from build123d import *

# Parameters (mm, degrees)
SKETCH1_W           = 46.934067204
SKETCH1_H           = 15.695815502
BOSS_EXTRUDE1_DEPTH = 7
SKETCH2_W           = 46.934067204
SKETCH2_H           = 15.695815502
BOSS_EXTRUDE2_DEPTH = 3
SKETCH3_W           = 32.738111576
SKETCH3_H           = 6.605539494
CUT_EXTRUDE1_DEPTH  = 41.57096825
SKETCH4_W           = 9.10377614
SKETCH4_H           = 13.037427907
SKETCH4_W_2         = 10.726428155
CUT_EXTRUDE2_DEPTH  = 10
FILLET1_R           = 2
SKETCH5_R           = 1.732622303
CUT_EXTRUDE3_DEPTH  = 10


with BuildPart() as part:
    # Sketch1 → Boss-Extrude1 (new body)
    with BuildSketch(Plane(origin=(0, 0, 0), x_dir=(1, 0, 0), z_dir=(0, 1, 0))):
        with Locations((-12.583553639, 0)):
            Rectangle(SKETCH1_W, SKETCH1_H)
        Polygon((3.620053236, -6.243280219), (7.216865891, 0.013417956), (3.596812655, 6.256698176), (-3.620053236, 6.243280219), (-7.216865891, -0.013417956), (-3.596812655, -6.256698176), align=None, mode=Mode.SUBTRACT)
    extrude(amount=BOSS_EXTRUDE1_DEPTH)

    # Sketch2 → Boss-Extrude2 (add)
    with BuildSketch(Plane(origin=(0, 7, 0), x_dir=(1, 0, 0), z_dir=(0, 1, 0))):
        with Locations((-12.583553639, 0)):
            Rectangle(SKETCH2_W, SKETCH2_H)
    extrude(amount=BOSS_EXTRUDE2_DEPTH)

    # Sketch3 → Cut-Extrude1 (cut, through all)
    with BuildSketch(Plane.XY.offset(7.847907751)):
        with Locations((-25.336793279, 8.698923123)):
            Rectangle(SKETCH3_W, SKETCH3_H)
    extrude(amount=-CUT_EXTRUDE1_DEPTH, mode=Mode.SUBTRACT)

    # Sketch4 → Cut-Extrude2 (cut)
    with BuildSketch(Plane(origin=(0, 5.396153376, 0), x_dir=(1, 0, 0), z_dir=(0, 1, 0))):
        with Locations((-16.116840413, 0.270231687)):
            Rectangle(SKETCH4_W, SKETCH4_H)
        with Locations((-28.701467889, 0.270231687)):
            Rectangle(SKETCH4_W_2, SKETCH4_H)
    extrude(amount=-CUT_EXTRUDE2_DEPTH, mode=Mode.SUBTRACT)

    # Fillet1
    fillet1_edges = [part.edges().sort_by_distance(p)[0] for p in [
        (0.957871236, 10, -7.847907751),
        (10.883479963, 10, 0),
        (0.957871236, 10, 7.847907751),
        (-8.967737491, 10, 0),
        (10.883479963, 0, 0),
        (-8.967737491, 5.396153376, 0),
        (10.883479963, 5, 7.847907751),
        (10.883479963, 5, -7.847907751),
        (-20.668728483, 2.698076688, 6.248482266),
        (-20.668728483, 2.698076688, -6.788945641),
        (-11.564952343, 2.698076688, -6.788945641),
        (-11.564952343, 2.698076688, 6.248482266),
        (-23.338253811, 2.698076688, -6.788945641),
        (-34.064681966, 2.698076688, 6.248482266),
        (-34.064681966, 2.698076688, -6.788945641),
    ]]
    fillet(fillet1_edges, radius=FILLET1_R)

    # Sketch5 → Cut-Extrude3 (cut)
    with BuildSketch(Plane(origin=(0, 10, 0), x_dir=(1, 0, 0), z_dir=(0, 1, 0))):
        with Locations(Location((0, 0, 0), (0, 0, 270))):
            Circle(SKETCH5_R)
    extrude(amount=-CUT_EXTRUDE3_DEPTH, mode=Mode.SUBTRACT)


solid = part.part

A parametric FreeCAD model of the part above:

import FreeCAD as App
import Part
import Sketcher


def edges_at(feature, points):
    """Names of the edges that pass closest to the given points."""
    edges = feature.Shape.Edges
    near = lambda p: min(range(len(edges)), key=lambda i: edges[i].distToShape(Part.Vertex(*p))[0])
    return sorted({f"Edge{near(p) + 1}" for p in points})


def add_polygon(sketch, points):
    """Adds a closed chain of lines whose ends are joined by coincident constraints."""
    first, n = sketch.GeometryCount, len(points)
    for a, b in zip(points, points[1:] + points[:1]):
        sketch.addGeometry(Part.LineSegment(App.Vector(*a, 0), App.Vector(*b, 0)), False)
    for i in range(n):
        sketch.addConstraint(Sketcher.Constraint("Coincident", first + i, 2, first + (i + 1) % n, 1))

doc = App.newDocument("Part")
body = doc.addObject("PartDesign::Body", "Body")

# Sketch on XZ plane
sketch1 = doc.addObject("Sketcher::SketchObject", "Sketch")
body.addObject(sketch1)
sketch1.AttachmentSupport = (doc.XZ_Plane, [""])
sketch1.MapMode = "FlatFace"
add_polygon(sketch1, [(-36.050587, -7.847908), (-36.050587, 7.847908), (10.88348, 7.847908), (10.88348, -7.847908)])  # lines 0-3
add_polygon(sketch1, [(7.216866, -0.013418), (3.620053, 6.24328), (-3.596813, 6.256698), (-7.216866, 0.013418), (-3.620053, -6.24328), (3.596813, -6.256698)])  # lines 4-9
sketch1.addConstraint([
    Sketcher.Constraint("Vertical", 0),
    Sketcher.Constraint("Horizontal", 1),
    Sketcher.Constraint("Vertical", 2),
    Sketcher.Constraint("Horizontal", 3),
    Sketcher.Constraint("Symmetric", 4, 2, 7, 2, -1, 1),
    Sketcher.Constraint("Symmetric", 5, 2, 8, 2, -1, 1),
    Sketcher.Constraint("Symmetric", 6, 2, 9, 2, -1, 1),
    Sketcher.Constraint("Equal", 4, 5),
    Sketcher.Constraint("Equal", 5, 6),
    Sketcher.Constraint("DistanceY", -1, 1, 5, 2, 6.256698),
    Sketcher.Constraint("DistanceY", 7, 2, 6, 2, 6.256698),
    Sketcher.Constraint("Distance", 4, 7.216878),
    Sketcher.Constraint("DistanceX", 1, 1, 1, 2, 46.934067),
    Sketcher.Constraint("DistanceY", 0, 1, 0, 2, 15.695816),
    Sketcher.Constraint("DistanceX", -1, 1, 1, 2, 10.88348),
    Sketcher.Constraint("DistanceY", -1, 1, 4, 2, 6.24328),
    Sketcher.Constraint("DistanceY", 5, 2, 1, 2, 1.59121),
])
pad1 = doc.addObject("PartDesign::Pad", "Pad")
body.addObject(pad1)
pad1.Profile = sketch1
pad1.Length = 7
pad1.Reversed = True

# Sketch on XZ plane
sketch2 = doc.addObject("Sketcher::SketchObject", "Sketch001")
body.addObject(sketch2)
sketch2.AttachmentSupport = (doc.XZ_Plane, [""])
sketch2.MapMode = "FlatFace"
sketch2.AttachmentOffset = App.Placement(App.Vector(0, 0, -7), App.Rotation())
add_polygon(sketch2, [(-36.050587, -7.847908), (-36.050587, 7.847908), (10.88348, 7.847908), (10.88348, -7.847908)])  # lines 0-3
sketch2.addConstraint([
    Sketcher.Constraint("Vertical", 0),
    Sketcher.Constraint("Horizontal", 1),
    Sketcher.Constraint("Vertical", 2),
    Sketcher.Constraint("Horizontal", 3),
    Sketcher.Constraint("DistanceX", 1, 1, 1, 2, 46.934067),
    Sketcher.Constraint("DistanceY", 0, 1, 0, 2, 15.695816),
    Sketcher.Constraint("DistanceX", -1, 1, 1, 2, 10.88348),
    Sketcher.Constraint("DistanceY", -1, 1, 0, 2, 7.847908),
])
pad2 = doc.addObject("PartDesign::Pad", "Pad001")
body.addObject(pad2)
pad2.Profile = sketch2
pad2.Length = 3
pad2.Reversed = True

# Sketch on XY plane
sketch3 = doc.addObject("Sketcher::SketchObject", "Sketch002")
body.addObject(sketch3)
sketch3.AttachmentSupport = (doc.XY_Plane, [""])
sketch3.MapMode = "FlatFace"
sketch3.AttachmentOffset = App.Placement(App.Vector(0, 0, 7.847908), App.Rotation())
add_polygon(sketch3, [(-41.705849, 12.001693), (-41.705849, 5.396153), (-8.967737, 5.396153), (-8.967737, 12.001693)])  # lines 0-3
sketch3.addConstraint([
    Sketcher.Constraint("Vertical", 0),
    Sketcher.Constraint("Horizontal", 1),
    Sketcher.Constraint("Vertical", 2),
    Sketcher.Constraint("Horizontal", 3),
    Sketcher.Constraint("DistanceX", 1, 1, 1, 2, 32.738112),
    Sketcher.Constraint("DistanceY", 0, 2, 0, 1, 6.605539),
    Sketcher.Constraint("DistanceX", 0, 2, -1, 1, 41.705849),
    Sketcher.Constraint("DistanceY", -1, 1, 0, 2, 5.396153),
])
pocket1 = doc.addObject("PartDesign::Pocket", "Pocket")
body.addObject(pocket1)
pocket1.Profile = sketch3
pocket1.Type = "ThroughAll"

# Sketch on XZ plane
sketch4 = doc.addObject("Sketcher::SketchObject", "Sketch003")
body.addObject(sketch4)
sketch4.AttachmentSupport = (doc.XZ_Plane, [""])
sketch4.MapMode = "FlatFace"
sketch4.AttachmentOffset = App.Placement(App.Vector(0, 0, -5.396153), App.Rotation())
add_polygon(sketch4, [(-20.668728, -6.788946), (-20.668728, 6.248482), (-11.564952, 6.248482), (-11.564952, -6.788946)])  # lines 0-3
add_polygon(sketch4, [(-34.064682, -6.788946), (-34.064682, 6.248482), (-23.338254, 6.248482), (-23.338254, -6.788946)])  # lines 4-7
sketch4.addConstraint([
    Sketcher.Constraint("Vertical", 0),
    Sketcher.Constraint("Horizontal", 1),
    Sketcher.Constraint("Vertical", 2),
    Sketcher.Constraint("Horizontal", 3),
    Sketcher.Constraint("Vertical", 4),
    Sketcher.Constraint("Horizontal", 5),
    Sketcher.Constraint("Vertical", 6),
    Sketcher.Constraint("Horizontal", 7),
    Sketcher.Constraint("Horizontal", 1, 2, 4, 2),
    Sketcher.Constraint("Horizontal", 3, 2, 6, 2),
    Sketcher.Constraint("DistanceX", 5, 1, 5, 2, 10.726428),
    Sketcher.Constraint("DistanceX", 5, 2, 1, 2, 11.773301),
    Sketcher.Constraint("DistanceX", 1, 1, 1, 2, 9.103776),
    Sketcher.Constraint("DistanceY", 0, 1, 0, 2, 13.037428),
    Sketcher.Constraint("DistanceX", 0, 2, -1, 1, 20.668728),
    Sketcher.Constraint("DistanceY", -1, 1, 0, 2, 6.248482),
])
pocket2 = doc.addObject("PartDesign::Pocket", "Pocket001")
body.addObject(pocket2)
pocket2.Profile = sketch4
pocket2.Length = 10
pocket2.Reversed = True
doc.recompute()

fillet = doc.addObject("PartDesign::Fillet", "Fillet")
body.addObject(fillet)
fillet.Base = (pocket2, edges_at(pocket2, [
    (0.958, 10, -7.848),
    (10.883, 10, 0),
    (0.958, 10, 7.848),
    (-8.968, 10, 0),
    (10.883, 0, 0),
    (-8.968, 5.396, 0),
    (10.883, 5, 7.848),
    (10.883, 5, -7.848),
    (-20.669, 2.698, 6.248),
    (-20.669, 2.698, -6.789),
    (-11.565, 2.698, -6.789),
    (-11.565, 2.698, 6.248),
    (-23.338, 2.698, -6.789),
    (-34.065, 2.698, 6.248),
    (-34.065, 2.698, -6.789),
]))
fillet.Radius = 2

# Sketch on XZ plane
sketch5 = doc.addObject("Sketcher::SketchObject", "Sketch004")
body.addObject(sketch5)
sketch5.AttachmentSupport = (doc.XZ_Plane, [""])
sketch5.MapMode = "FlatFace"
sketch5.AttachmentOffset = App.Placement(App.Vector(0, 0, -10), App.Rotation())
sketch5.addGeometry(Part.Circle(App.Vector(0, 0, 0), App.Vector(0, 0, 1), 1.732622), False)
sketch5.addConstraint([
    Sketcher.Constraint("Coincident", 0, 3, -1, 1),
    Sketcher.Constraint("Diameter", 0, 3.465245),
])
pocket3 = doc.addObject("PartDesign::Pocket", "Pocket002")
body.addObject(pocket3)
pocket3.Profile = sketch5
pocket3.Length = 10
pocket3.Reversed = True

doc.recompute()
